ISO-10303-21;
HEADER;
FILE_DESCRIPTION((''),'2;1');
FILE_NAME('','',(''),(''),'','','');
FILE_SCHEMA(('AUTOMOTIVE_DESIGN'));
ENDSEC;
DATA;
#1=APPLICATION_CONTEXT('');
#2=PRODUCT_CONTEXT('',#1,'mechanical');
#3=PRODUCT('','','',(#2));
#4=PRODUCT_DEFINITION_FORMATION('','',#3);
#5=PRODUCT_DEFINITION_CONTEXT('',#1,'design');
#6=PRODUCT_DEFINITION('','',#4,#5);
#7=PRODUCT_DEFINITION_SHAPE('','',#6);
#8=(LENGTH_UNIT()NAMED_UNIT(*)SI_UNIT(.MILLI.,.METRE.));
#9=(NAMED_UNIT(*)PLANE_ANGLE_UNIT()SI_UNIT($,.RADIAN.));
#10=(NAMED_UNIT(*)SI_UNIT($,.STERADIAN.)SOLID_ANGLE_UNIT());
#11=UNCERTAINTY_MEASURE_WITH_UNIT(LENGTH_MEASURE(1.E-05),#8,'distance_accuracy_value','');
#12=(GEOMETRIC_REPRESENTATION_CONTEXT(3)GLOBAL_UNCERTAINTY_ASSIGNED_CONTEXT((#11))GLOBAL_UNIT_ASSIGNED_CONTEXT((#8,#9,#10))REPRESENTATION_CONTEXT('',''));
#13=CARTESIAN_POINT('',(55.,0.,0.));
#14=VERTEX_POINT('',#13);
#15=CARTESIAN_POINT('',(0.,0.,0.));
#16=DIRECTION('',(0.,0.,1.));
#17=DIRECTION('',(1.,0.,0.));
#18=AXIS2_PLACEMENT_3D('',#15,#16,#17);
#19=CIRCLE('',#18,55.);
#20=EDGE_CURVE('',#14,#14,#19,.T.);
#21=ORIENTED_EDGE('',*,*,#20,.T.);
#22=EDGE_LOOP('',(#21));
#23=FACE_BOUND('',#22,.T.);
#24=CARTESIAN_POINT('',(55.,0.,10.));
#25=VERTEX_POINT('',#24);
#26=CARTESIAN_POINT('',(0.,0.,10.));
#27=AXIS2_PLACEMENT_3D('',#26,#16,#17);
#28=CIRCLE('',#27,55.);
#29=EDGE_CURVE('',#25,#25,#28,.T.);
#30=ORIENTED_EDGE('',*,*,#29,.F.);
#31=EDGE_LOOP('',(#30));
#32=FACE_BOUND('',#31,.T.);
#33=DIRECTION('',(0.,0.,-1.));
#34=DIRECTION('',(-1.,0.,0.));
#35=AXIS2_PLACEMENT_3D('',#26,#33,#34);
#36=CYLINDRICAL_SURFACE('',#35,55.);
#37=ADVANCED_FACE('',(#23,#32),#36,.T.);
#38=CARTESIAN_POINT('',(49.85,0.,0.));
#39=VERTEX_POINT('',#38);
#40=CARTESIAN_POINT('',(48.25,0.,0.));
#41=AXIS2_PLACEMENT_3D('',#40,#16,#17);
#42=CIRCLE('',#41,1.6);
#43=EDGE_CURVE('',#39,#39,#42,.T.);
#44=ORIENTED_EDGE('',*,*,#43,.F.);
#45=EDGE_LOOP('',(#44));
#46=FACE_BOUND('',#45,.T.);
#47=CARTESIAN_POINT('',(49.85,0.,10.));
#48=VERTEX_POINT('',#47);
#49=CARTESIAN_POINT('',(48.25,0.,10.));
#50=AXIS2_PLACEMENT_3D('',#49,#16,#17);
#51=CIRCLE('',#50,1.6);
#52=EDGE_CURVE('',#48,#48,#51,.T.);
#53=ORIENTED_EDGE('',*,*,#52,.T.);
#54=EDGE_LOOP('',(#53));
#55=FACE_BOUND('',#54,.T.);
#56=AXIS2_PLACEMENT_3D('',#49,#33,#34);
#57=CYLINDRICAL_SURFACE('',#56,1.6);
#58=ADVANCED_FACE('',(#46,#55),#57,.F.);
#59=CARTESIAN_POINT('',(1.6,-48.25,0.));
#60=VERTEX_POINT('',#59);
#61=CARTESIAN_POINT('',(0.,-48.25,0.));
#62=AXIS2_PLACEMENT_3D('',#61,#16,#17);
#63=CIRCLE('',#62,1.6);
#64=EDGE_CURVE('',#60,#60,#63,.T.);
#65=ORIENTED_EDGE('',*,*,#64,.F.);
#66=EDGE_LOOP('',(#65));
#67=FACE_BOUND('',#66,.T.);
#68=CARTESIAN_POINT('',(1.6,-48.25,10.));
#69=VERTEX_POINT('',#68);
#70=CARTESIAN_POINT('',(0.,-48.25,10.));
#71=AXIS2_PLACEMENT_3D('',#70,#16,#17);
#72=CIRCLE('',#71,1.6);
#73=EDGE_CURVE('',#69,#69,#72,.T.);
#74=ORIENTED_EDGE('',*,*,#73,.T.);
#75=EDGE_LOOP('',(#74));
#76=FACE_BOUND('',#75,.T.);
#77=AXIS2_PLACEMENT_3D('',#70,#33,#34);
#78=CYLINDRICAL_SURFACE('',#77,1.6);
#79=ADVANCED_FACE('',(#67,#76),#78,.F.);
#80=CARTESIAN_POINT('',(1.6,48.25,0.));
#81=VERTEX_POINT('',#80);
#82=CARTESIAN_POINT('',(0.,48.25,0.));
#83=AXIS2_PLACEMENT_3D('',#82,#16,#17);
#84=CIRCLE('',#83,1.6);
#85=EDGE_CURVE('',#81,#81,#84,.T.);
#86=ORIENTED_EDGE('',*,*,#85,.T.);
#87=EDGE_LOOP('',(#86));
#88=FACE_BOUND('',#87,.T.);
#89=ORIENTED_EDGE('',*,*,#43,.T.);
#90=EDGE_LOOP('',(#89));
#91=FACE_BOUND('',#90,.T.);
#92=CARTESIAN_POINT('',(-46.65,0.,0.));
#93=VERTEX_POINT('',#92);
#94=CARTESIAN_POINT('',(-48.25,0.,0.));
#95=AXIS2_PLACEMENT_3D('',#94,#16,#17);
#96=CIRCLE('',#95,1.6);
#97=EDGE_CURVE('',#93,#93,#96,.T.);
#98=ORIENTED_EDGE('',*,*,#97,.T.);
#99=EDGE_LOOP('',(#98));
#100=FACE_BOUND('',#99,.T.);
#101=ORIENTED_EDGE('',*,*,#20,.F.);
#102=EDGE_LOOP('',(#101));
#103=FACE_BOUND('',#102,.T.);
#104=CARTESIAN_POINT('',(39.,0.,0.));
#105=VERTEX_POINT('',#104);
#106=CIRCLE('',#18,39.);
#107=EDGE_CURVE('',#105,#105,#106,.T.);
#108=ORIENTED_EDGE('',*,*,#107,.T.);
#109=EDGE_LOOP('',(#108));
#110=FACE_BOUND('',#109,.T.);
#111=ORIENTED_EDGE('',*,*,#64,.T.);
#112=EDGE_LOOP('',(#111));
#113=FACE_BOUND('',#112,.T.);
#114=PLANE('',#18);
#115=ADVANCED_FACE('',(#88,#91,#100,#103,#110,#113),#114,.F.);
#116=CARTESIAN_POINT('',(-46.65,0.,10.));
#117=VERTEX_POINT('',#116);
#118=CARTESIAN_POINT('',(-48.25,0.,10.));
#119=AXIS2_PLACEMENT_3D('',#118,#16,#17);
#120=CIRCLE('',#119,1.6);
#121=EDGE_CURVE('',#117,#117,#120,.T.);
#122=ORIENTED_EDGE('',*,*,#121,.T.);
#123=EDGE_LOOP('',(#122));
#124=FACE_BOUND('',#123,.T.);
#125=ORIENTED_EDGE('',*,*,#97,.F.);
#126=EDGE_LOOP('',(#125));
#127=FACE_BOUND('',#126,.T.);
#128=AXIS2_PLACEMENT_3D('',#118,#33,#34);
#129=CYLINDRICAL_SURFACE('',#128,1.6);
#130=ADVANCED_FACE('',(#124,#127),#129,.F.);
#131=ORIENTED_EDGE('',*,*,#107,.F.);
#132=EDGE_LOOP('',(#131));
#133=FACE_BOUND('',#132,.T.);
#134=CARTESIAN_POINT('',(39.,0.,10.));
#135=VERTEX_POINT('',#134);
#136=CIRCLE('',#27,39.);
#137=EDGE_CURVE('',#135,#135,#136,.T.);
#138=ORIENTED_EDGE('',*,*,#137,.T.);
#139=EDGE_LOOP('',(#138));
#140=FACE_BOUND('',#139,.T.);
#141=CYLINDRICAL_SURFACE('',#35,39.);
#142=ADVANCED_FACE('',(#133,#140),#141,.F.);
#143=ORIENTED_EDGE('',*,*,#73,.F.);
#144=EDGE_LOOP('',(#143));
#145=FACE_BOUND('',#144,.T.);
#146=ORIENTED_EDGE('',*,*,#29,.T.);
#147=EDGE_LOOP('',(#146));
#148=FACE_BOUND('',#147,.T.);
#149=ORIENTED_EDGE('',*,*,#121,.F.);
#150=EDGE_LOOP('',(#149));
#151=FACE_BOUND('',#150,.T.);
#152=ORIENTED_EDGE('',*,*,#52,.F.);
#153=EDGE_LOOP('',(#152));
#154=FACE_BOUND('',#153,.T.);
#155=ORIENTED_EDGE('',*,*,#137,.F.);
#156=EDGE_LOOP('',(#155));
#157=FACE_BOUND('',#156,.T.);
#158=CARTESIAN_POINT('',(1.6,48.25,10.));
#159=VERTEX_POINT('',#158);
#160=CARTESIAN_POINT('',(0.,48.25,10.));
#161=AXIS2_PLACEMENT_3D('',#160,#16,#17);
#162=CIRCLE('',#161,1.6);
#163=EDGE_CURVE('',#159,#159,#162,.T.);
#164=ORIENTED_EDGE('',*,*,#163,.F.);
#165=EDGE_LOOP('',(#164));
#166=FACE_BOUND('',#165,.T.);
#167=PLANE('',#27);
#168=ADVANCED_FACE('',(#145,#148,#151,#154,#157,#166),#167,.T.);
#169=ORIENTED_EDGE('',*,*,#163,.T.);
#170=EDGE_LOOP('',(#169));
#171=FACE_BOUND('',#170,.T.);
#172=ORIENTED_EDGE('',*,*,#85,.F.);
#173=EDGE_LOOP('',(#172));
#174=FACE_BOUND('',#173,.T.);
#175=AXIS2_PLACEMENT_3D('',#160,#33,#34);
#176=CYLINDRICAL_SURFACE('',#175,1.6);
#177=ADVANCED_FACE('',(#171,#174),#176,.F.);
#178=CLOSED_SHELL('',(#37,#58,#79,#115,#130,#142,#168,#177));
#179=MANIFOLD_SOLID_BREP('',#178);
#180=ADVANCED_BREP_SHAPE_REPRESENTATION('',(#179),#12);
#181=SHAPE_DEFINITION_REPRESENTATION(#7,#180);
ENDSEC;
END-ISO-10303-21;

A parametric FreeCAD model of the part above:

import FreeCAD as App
import Part
import Sketcher
Q = App.Units.Quantity

doc = App.newDocument("Part")
body = doc.addObject("PartDesign::Body", "Body")

sketch1 = doc.addObject("Sketcher::SketchObject", "Sketch")
body.addObject(sketch1)
sketch1.AttachmentSupport = (doc.XY_Plane, [""])
sketch1.MapMode = "FlatFace"
sketch1.addGeometry([
    Part.Circle(App.Vector(0, 0, 0), App.Vector(0, 0, 1), 55),
    Part.Circle(App.Vector(0, -48.2, 0), App.Vector(0, 0, 1), 1.6),
    Part.Circle(App.Vector(-48.2, 0, 0), App.Vector(0, 0, 1), 1.6),
    Part.Circle(App.Vector(0, 0, 0), App.Vector(0, 0, 1), 39),
    Part.Circle(App.Vector(48.2, 0, 0), App.Vector(0, 0, 1), 1.6),
    Part.Circle(App.Vector(0, 48.2, 0), App.Vector(0, 0, 1), 1.6),
], False)
sketch1.addConstraint([
    Sketcher.Constraint("Coincident", 0, 3, -1, 1),
    Sketcher.Constraint("Coincident", 3, 3, -1, 1),
    Sketcher.Constraint("Equal", 1, 2),
    Sketcher.Constraint("Equal", 2, 4),
    Sketcher.Constraint("Equal", 4, 5),
    Sketcher.Constraint("Symmetric", 2, 3, 4, 3, -1, 1),
    Sketcher.Constraint("Symmetric", 1, 3, 5, 3, -1, 1),
    Sketcher.Constraint("PointOnObject", 1, 3, -2),
    Sketcher.Constraint("PointOnObject", 2, 3, -1),
    Sketcher.Constraint("Diameter", 0, Q("110 mm")),
    Sketcher.Constraint("Diameter", 3, Q("78 mm")),
    Sketcher.Constraint("Diameter", 1, Q("3.2 mm")),
    Sketcher.Constraint("DistanceX", 2, 3, 4, 3, Q("96.5 mm")),
    Sketcher.Constraint("DistanceY", 1, 3, 5, 3, Q("96.5 mm")),
])
pad1 = doc.addObject("PartDesign::Pad", "Pad")
body.addObject(pad1)
pad1.Profile = sketch1
pad1.Length = 10

doc.recompute()
